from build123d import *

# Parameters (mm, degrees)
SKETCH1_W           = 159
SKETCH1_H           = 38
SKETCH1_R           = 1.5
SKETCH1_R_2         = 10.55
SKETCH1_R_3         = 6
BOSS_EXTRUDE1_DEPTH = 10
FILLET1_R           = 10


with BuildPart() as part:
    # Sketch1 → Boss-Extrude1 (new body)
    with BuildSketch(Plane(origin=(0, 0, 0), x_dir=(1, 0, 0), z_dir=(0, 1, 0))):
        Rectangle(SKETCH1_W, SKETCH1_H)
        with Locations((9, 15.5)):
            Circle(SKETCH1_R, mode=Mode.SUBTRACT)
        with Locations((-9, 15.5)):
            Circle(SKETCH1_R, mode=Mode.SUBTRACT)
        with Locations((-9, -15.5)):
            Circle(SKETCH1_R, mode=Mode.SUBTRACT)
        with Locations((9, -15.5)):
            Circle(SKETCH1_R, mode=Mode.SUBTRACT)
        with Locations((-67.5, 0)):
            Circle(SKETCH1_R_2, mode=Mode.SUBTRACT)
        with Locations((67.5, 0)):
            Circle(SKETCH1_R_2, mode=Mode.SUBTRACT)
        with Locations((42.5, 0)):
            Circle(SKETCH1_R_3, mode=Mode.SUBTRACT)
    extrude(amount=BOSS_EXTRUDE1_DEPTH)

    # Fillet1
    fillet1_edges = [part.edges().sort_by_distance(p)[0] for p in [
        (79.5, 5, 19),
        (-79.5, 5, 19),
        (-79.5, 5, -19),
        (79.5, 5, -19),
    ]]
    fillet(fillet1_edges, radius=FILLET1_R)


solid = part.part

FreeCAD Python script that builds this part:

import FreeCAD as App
import Part
import Sketcher

V = App.Vector
Q = App.Units.Quantity


def edges_at(feature, points):
    """Names of the edges that pass closest to the given points."""
    edges = feature.Shape.Edges
    near = lambda p: min(range(len(edges)), key=lambda i: edges[i].distToShape(Part.Vertex(*p))[0])
    return sorted({f"Edge{near(p) + 1}" for p in points})

doc = App.newDocument("Part")
body = doc.addObject("PartDesign::Body", "Body")

# Sketch on XZ plane
sketch1 = doc.addObject("Sketcher::SketchObject", "Sketch")
body.addObject(sketch1)
sketch1.AttachmentSupport = (doc.XZ_Plane, [""])
sketch1.MapMode = "FlatFace"
sketch1.addGeometry(Part.LineSegment(V(-79.5, -19, 0), V(-79.5, 19, 0)), False)
sketch1.addGeometry(Part.LineSegment(V(-79.5, 19, 0), V(79.5, 19, 0)), False)
sketch1.addGeometry(Part.LineSegment(V(79.5, 19, 0), V(79.5, -19, 0)), False)
sketch1.addGeometry(Part.LineSegment(V(79.5, -19, 0), V(-79.5, -19, 0)), False)
sketch1.addGeometry(Part.Circle(V(-9, 15.5, 0), V(0, 0, 1), 1.5), False)
sketch1.addGeometry(Part.Circle(V(9, 15.5, 0), V(0, 0, 1), 1.5), False)
sketch1.addGeometry(Part.Circle(V(-67.5, 0, 0), V(0, 0, 1), 10.6), False)
sketch1.addGeometry(Part.Circle(V(-9, -15.5, 0), V(0, 0, 1), 1.5), False)
sketch1.addGeometry(Part.Circle(V(42.5, 0, 0), V(0, 0, 1), 6), False)
sketch1.addGeometry(Part.Circle(V(67.5, 0, 0), V(0, 0, 1), 10.6), False)
sketch1.addGeometry(Part.Circle(V(9, -15.5, 0), V(0, 0, 1), 1.5), False)
sketch1.addConstraint(Sketcher.Constraint("Coincident", 0, 2, 1, 1))
sketch1.addConstraint(Sketcher.Constraint("Coincident", 1, 2, 2, 1))
sketch1.addConstraint(Sketcher.Constraint("Coincident", 2, 2, 3, 1))
sketch1.addConstraint(Sketcher.Constraint("Coincident", 3, 2, 0, 1))
sketch1.addConstraint(Sketcher.Constraint("Vertical", 0))
sketch1.addConstraint(Sketcher.Constraint("Horizontal", 1))
sketch1.addConstraint(Sketcher.Constraint("Vertical", 2))
sketch1.addConstraint(Sketcher.Constraint("Horizontal", 3))
sketch1.addConstraint(Sketcher.Constraint("Equal", 4, 5))
sketch1.addConstraint(Sketcher.Constraint("Equal", 5, 7))
sketch1.addConstraint(Sketcher.Constraint("Equal", 6, 9))
sketch1.addConstraint(Sketcher.Constraint("Equal", 7, 10))
sketch1.addConstraint(Sketcher.Constraint("Symmetric", 5, 3, 7, 3, -1, 1))
sketch1.addConstraint(Sketcher.Constraint("Symmetric", 6, 3, 9, 3, -1, 1))
sketch1.addConstraint(Sketcher.Constraint("Symmetric", 4, 3, 10, 3, -1, 1))
sketch1.addConstraint(Sketcher.Constraint("Symmetric", 0, 2, 2, 2, -1, 1))
sketch1.addConstraint(Sketcher.Constraint("Symmetric", 4, 3, 5, 3, -2))
sketch1.addConstraint(Sketcher.Constraint("PointOnObject", 6, 3, -1))
sketch1.addConstraint(Sketcher.Constraint("PointOnObject", 8, 3, -1))
sketch1.addConstraint(Sketcher.Constraint("Diameter", 4, Q("3 mm")))
sketch1.addConstraint(Sketcher.Constraint("Diameter", 8, Q("12 mm")))
sketch1.addConstraint(Sketcher.Constraint("Diameter", 6, Q("21.1 mm")))
sketch1.addConstraint(Sketcher.Constraint("DistanceX", 1, 1, 1, 2, Q("159 mm")))
sketch1.addConstraint(Sketcher.Constraint("DistanceY", 0, 1, 0, 2, Q("38 mm")))
sketch1.addConstraint(Sketcher.Constraint("DistanceX", 4, 3, -1, 1, Q("9 mm")))
sketch1.addConstraint(Sketcher.Constraint("DistanceY", 7, 3, 4, 3, Q("31 mm")))
sketch1.addConstraint(Sketcher.Constraint("DistanceX", 6, 3, 8, 3, Q("110 mm")))
sketch1.addConstraint(Sketcher.Constraint("DistanceX", 8, 3, 9, 3, Q("25 mm")))
pad1 = doc.addObject("PartDesign::Pad", "Pad")
body.addObject(pad1)
pad1.Profile = sketch1
pad1.Length = 10
pad1.Reversed = True
doc.recompute()

fillet = doc.addObject("PartDesign::Fillet", "Fillet")
body.addObject(fillet)
fillet.Base = (pad1, edges_at(pad1, [
    (79.5, 5, 19),
    (-79.5, 5, 19),
    (-79.5, 5, -19),
    (79.5, 5, -19),
]))
fillet.Radius = 10

doc.recompute()
